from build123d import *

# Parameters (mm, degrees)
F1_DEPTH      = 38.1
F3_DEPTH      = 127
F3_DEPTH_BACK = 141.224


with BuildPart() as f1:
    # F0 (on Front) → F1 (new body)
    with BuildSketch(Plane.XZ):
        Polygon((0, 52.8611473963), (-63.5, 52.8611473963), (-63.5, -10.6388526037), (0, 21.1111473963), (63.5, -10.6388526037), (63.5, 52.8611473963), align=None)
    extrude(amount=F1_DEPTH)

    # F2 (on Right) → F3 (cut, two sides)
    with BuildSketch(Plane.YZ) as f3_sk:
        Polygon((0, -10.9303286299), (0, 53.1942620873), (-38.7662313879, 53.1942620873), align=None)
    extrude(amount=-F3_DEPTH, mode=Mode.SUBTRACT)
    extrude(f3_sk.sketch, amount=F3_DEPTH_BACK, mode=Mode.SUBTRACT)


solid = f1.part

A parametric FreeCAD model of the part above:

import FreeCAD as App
import Part
import Sketcher

V = App.Vector
Q = App.Units.Quantity


def add_polygon(sketch, points):
    """Adds a closed chain of lines whose ends are joined by coincident constraints."""
    first, n = sketch.GeometryCount, len(points)
    for a, b in zip(points, points[1:] + points[:1]):
        sketch.addGeometry(Part.LineSegment(App.Vector(*a, 0), App.Vector(*b, 0)), False)
    for i in range(n):
        sketch.addConstraint(Sketcher.Constraint("Coincident", first + i, 2, first + (i + 1) % n, 1))

doc = App.newDocument("Part")
body = doc.addObject("PartDesign::Body", "Body")

# Sketch on XZ plane
sketch1 = body.newObject("Sketcher::SketchObject", "Sketch")
sketch1.AttachmentSupport = (doc.getObject("XZ_Plane"), [""])
sketch1.MapMode = "FlatFace"
add_polygon(sketch1, [(-64, 53), (-64, -11), (0, 21), (64, -11), (64, 53)])  # lines 0-4
sketch1.addConstraint([
    Sketcher.Constraint("Vertical", 0),
    Sketcher.Constraint("Vertical", 3),
    Sketcher.Constraint("Horizontal", 4),
    Sketcher.Constraint("Symmetric", 0, 2, 2, 2, -2),
    Sketcher.Constraint("PointOnObject", 1, 2, -2),
    Sketcher.Constraint("DistanceX", 4, 2, 4, 1, Q("5 in")),
    Sketcher.Constraint("DistanceY", 0, 2, 0, 1, Q("2.5 in")),
    Sketcher.Constraint("DistanceY", 0, 2, 1, 2, Q("1.25 in")),
    Sketcher.Constraint("DistanceY", 0, 2, -1, 1, 10.638853),
])
pad1 = body.newObject("PartDesign::Pad", "Pad")
pad1.Profile = sketch1
pad1.Length = Q("1.5 in")

# Sketch on YZ plane
sketch2 = body.newObject("Sketcher::SketchObject", "Sketch001")
sketch2.AttachmentSupport = (doc.getObject("YZ_Plane"), [""])
sketch2.MapMode = "FlatFace"
add_polygon(sketch2, [(0, -11), (0, 53), (-39, 53)])  # lines 0-2
sketch2.addConstraint([
    Sketcher.Constraint("Vertical", 0),
    Sketcher.Constraint("Horizontal", 1),
    Sketcher.Constraint("PointOnObject", 0, 2, -2),
    Sketcher.Constraint("DistanceX", 1, 2, 1, 1, 38.766231),
    Sketcher.Constraint("DistanceY", 0, 1, 0, 2, 64.124591),
    Sketcher.Constraint("DistanceY", 2, 2, -1, 1, 10.930329),
])
pocket1 = body.newObject("PartDesign::Pocket", "Pocket")
pocket1.Profile = sketch2
pocket1.Type = "ThroughAll"
pocket1.Midplane = True

doc.recompute()
